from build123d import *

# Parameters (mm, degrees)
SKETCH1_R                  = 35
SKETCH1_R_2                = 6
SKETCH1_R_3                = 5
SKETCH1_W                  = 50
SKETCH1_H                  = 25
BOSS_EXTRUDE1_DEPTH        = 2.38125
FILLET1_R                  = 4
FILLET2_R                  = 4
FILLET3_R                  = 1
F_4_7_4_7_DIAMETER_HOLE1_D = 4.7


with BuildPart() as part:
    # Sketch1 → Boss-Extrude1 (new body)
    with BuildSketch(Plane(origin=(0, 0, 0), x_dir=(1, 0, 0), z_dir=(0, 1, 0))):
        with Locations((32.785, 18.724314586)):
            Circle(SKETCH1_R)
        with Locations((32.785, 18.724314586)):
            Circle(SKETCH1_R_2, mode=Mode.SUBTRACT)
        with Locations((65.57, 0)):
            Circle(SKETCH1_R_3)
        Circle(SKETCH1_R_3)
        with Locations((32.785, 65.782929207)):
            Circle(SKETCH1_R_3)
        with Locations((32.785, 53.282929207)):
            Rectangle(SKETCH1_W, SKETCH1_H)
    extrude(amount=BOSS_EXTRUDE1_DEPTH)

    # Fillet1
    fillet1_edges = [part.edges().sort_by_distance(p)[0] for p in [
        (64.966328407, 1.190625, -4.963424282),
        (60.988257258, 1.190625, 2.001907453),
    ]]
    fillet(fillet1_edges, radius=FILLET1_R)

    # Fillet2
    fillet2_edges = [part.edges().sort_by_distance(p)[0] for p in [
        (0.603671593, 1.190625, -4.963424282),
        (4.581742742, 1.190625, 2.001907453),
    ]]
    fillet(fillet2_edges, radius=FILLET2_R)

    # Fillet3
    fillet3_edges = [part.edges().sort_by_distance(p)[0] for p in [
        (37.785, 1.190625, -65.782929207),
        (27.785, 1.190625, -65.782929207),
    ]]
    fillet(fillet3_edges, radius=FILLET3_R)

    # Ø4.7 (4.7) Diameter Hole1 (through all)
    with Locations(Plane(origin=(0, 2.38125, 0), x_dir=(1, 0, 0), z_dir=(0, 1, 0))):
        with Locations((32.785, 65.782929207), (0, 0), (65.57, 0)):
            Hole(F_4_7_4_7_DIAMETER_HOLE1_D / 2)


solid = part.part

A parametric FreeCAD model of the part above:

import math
import FreeCAD as App
import Part
import Sketcher

V = App.Vector
Q = App.Units.Quantity


def edges_at(feature, points):
    """Names of the edges that pass closest to the given points."""
    edges = feature.Shape.Edges
    near = lambda p: min(range(len(edges)), key=lambda i: edges[i].distToShape(Part.Vertex(*p))[0])
    return sorted({f"Edge{near(p) + 1}" for p in points})

doc = App.newDocument("Part")
body = doc.addObject("PartDesign::Body", "Body")

# Sketch on XZ plane
sketch1 = body.newObject("Sketcher::SketchObject", "Sketch")
sketch1.AttachmentSupport = (doc.getObject("XZ_Plane"), [""])
sketch1.MapMode = "FlatFace"
sketch1.addGeometry(Part.ArcOfCircle(Part.Circle(V(33, -19, 0), V(0, 0, 1), 35), math.radians(36), math.radians(144)), False)
sketch1.addGeometry(Part.ArcOfCircle(Part.Circle(V(66, 0, 0), V(0, 0, 1), 5), math.radians(-97), math.radians(156)), False)
sketch1.addGeometry(Part.ArcOfCircle(Part.Circle(V(33, -19, 0), V(0, 0, 1), 35), math.radians(-44), math.radians(23)), False)
sketch1.addGeometry(Part.LineSegment(V(58, -43, 0), V(58, -66, 0)), False)
sketch1.addGeometry(Part.LineSegment(V(58, -66, 0), V(38, -66, 0)), False)
sketch1.addGeometry(Part.ArcOfCircle(Part.Circle(V(33, -66, 0), V(0, 0, 1), 5), math.radians(180), math.radians(360)), False)
sketch1.addGeometry(Part.LineSegment(V(28, -66, 0), V(8, -66, 0)), False)
sketch1.addGeometry(Part.LineSegment(V(8, -66, 0), V(8, -43, 0)), False)
sketch1.addGeometry(Part.ArcOfCircle(Part.Circle(V(33, -19, 0), V(0, 0, 1), 35), math.radians(157), math.radians(224)), False)
sketch1.addGeometry(Part.ArcOfCircle(Part.Circle(V(0, 0, 0), V(0, 0, 1), 5), math.radians(24), math.radians(277)), False)
sketch1.addGeometry(Part.Circle(V(33, -19, 0), V(0, 0, 1), 6), False)
sketch1.addConstraint(Sketcher.Constraint("Coincident", 0, 1, 1, 2))
sketch1.addConstraint(Sketcher.Constraint("Coincident", 1, 1, 2, 2))
sketch1.addConstraint(Sketcher.Constraint("Coincident", 2, 1, 3, 1))
sketch1.addConstraint(Sketcher.Constraint("Coincident", 3, 2, 4, 1))
sketch1.addConstraint(Sketcher.Constraint("Coincident", 4, 2, 5, 2))
sketch1.addConstraint(Sketcher.Constraint("Coincident", 5, 1, 6, 1))
sketch1.addConstraint(Sketcher.Constraint("Coincident", 6, 2, 7, 1))
sketch1.addConstraint(Sketcher.Constraint("Coincident", 7, 2, 8, 2))
sketch1.addConstraint(Sketcher.Constraint("Coincident", 8, 1, 9, 2))
sketch1.addConstraint(Sketcher.Constraint("Coincident", 9, 1, 0, 2))
sketch1.addConstraint(Sketcher.Constraint("Vertical", 3))
sketch1.addConstraint(Sketcher.Constraint("Horizontal", 4))
sketch1.addConstraint(Sketcher.Constraint("Horizontal", 6))
sketch1.addConstraint(Sketcher.Constraint("Vertical", 7))
sketch1.addConstraint(Sketcher.Constraint("Coincident", 9, 3, -1, 1))
sketch1.addConstraint(Sketcher.Constraint("Coincident", 2, 3, 0, 3))
sketch1.addConstraint(Sketcher.Constraint("Coincident", 8, 3, 0, 3))
sketch1.addConstraint(Sketcher.Constraint("Coincident", 10, 3, 0, 3))
sketch1.addConstraint(Sketcher.Constraint("Equal", 0, 2))
sketch1.addConstraint(Sketcher.Constraint("Equal", 1, 5))
sketch1.addConstraint(Sketcher.Constraint("Equal", 2, 8))
sketch1.addConstraint(Sketcher.Constraint("Equal", 5, 9))
sketch1.addConstraint(Sketcher.Constraint("PointOnObject", 1, 3, -1))
sketch1.addConstraint(Sketcher.Constraint("Horizontal", 5, 3, 3, 2))
sketch1.addConstraint(Sketcher.Constraint("Horizontal", 4, 2, 5, 1))
sketch1.addConstraint(Sketcher.Constraint("Horizontal", 2, 1, 7, 2))
sketch1.addConstraint(Sketcher.Constraint("Horizontal", 1, 1, 8, 1))
sketch1.addConstraint(Sketcher.Constraint("Vertical", 2, 3, 5, 3))
sketch1.addConstraint(Sketcher.Constraint("Diameter", 10, Q("12 mm")))
sketch1.addConstraint(Sketcher.Constraint("Radius", 0, Q("35 mm")))
sketch1.addConstraint(Sketcher.Constraint("Radius", 1, Q("5 mm")))
sketch1.addConstraint(Sketcher.Constraint("DistanceX", 4, 2, 4, 1, Q("20 mm")))
sketch1.addConstraint(Sketcher.Constraint("DistanceX", -1, 1, 1, 3, Q("65.57 mm")))
sketch1.addConstraint(Sketcher.Constraint("DistanceY", 3, 2, 3, 1, Q("22.563717 mm")))
sketch1.addConstraint(Sketcher.Constraint("DistanceY", 5, 3, -1, 1, Q("65.782929 mm")))
pad1 = body.newObject("PartDesign::Pad", "Pad")
pad1.Profile = sketch1
pad1.Length = 2.38125
pad1.Reversed = True
doc.recompute()

fillet = body.newObject("PartDesign::Fillet", "Fillet")
fillet.Base = (pad1, edges_at(pad1, [(64.966, 1.191, -4.963), (60.988, 1.191, 2.002)]))
fillet.Radius = 4
doc.recompute()

fillet2 = body.newObject("PartDesign::Fillet", "Fillet001")
fillet2.Base = (fillet, edges_at(fillet, [(0.604, 1.191, -4.963), (4.582, 1.191, 2.002)]))
fillet2.Radius = 4
doc.recompute()

fillet3 = body.newObject("PartDesign::Fillet", "Fillet002")
fillet3.Base = (fillet2, edges_at(fillet2, [(37.785, 1.191, -65.783), (27.785, 1.191, -65.783)]))
fillet3.Radius = 1

# Sketch on XZ plane
sketch2 = body.newObject("Sketcher::SketchObject", "Sketch001")
sketch2.AttachmentSupport = (doc.getObject("XZ_Plane"), [""])
sketch2.MapMode = "FlatFace"
sketch2.AttachmentOffset = App.Placement(V(0, 0, -2.38125), App.Rotation())
sketch2.addGeometry(Part.Circle(V(32.8, -65.8, 0), V(0, 0, 1), 2.4), False)
sketch2.addGeometry(Part.Circle(V(0, 0, 0), V(0, 0, 1), 2.4), False)
sketch2.addGeometry(Part.Circle(V(65.6, 0, 0), V(0, 0, 1), 2.4), False)
sketch2.addConstraint(Sketcher.Constraint("Coincident", 1, 3, -1, 1))
sketch2.addConstraint(Sketcher.Constraint("Equal", 0, 1))
sketch2.addConstraint(Sketcher.Constraint("Equal", 1, 2))
sketch2.addConstraint(Sketcher.Constraint("PointOnObject", 2, 3, -1))
sketch2.addConstraint(Sketcher.Constraint("Diameter", 0, Q("4.7 mm")))
sketch2.addConstraint(Sketcher.Constraint("DistanceX", -1, 1, 2, 3, Q("65.57 mm")))
sketch2.addConstraint(Sketcher.Constraint("DistanceX", -1, 1, 0, 3, Q("32.785 mm")))
sketch2.addConstraint(Sketcher.Constraint("DistanceY", 0, 3, -1, 1, Q("65.782929 mm")))
doc.recompute()
hole = body.newObject("PartDesign::Hole", "Hole")
hole.Profile = sketch2
hole.ThreadType = "None"
hole.Diameter = 4.7
hole.DepthType = "ThroughAll"
hole.Reversed = True

doc.recompute()
